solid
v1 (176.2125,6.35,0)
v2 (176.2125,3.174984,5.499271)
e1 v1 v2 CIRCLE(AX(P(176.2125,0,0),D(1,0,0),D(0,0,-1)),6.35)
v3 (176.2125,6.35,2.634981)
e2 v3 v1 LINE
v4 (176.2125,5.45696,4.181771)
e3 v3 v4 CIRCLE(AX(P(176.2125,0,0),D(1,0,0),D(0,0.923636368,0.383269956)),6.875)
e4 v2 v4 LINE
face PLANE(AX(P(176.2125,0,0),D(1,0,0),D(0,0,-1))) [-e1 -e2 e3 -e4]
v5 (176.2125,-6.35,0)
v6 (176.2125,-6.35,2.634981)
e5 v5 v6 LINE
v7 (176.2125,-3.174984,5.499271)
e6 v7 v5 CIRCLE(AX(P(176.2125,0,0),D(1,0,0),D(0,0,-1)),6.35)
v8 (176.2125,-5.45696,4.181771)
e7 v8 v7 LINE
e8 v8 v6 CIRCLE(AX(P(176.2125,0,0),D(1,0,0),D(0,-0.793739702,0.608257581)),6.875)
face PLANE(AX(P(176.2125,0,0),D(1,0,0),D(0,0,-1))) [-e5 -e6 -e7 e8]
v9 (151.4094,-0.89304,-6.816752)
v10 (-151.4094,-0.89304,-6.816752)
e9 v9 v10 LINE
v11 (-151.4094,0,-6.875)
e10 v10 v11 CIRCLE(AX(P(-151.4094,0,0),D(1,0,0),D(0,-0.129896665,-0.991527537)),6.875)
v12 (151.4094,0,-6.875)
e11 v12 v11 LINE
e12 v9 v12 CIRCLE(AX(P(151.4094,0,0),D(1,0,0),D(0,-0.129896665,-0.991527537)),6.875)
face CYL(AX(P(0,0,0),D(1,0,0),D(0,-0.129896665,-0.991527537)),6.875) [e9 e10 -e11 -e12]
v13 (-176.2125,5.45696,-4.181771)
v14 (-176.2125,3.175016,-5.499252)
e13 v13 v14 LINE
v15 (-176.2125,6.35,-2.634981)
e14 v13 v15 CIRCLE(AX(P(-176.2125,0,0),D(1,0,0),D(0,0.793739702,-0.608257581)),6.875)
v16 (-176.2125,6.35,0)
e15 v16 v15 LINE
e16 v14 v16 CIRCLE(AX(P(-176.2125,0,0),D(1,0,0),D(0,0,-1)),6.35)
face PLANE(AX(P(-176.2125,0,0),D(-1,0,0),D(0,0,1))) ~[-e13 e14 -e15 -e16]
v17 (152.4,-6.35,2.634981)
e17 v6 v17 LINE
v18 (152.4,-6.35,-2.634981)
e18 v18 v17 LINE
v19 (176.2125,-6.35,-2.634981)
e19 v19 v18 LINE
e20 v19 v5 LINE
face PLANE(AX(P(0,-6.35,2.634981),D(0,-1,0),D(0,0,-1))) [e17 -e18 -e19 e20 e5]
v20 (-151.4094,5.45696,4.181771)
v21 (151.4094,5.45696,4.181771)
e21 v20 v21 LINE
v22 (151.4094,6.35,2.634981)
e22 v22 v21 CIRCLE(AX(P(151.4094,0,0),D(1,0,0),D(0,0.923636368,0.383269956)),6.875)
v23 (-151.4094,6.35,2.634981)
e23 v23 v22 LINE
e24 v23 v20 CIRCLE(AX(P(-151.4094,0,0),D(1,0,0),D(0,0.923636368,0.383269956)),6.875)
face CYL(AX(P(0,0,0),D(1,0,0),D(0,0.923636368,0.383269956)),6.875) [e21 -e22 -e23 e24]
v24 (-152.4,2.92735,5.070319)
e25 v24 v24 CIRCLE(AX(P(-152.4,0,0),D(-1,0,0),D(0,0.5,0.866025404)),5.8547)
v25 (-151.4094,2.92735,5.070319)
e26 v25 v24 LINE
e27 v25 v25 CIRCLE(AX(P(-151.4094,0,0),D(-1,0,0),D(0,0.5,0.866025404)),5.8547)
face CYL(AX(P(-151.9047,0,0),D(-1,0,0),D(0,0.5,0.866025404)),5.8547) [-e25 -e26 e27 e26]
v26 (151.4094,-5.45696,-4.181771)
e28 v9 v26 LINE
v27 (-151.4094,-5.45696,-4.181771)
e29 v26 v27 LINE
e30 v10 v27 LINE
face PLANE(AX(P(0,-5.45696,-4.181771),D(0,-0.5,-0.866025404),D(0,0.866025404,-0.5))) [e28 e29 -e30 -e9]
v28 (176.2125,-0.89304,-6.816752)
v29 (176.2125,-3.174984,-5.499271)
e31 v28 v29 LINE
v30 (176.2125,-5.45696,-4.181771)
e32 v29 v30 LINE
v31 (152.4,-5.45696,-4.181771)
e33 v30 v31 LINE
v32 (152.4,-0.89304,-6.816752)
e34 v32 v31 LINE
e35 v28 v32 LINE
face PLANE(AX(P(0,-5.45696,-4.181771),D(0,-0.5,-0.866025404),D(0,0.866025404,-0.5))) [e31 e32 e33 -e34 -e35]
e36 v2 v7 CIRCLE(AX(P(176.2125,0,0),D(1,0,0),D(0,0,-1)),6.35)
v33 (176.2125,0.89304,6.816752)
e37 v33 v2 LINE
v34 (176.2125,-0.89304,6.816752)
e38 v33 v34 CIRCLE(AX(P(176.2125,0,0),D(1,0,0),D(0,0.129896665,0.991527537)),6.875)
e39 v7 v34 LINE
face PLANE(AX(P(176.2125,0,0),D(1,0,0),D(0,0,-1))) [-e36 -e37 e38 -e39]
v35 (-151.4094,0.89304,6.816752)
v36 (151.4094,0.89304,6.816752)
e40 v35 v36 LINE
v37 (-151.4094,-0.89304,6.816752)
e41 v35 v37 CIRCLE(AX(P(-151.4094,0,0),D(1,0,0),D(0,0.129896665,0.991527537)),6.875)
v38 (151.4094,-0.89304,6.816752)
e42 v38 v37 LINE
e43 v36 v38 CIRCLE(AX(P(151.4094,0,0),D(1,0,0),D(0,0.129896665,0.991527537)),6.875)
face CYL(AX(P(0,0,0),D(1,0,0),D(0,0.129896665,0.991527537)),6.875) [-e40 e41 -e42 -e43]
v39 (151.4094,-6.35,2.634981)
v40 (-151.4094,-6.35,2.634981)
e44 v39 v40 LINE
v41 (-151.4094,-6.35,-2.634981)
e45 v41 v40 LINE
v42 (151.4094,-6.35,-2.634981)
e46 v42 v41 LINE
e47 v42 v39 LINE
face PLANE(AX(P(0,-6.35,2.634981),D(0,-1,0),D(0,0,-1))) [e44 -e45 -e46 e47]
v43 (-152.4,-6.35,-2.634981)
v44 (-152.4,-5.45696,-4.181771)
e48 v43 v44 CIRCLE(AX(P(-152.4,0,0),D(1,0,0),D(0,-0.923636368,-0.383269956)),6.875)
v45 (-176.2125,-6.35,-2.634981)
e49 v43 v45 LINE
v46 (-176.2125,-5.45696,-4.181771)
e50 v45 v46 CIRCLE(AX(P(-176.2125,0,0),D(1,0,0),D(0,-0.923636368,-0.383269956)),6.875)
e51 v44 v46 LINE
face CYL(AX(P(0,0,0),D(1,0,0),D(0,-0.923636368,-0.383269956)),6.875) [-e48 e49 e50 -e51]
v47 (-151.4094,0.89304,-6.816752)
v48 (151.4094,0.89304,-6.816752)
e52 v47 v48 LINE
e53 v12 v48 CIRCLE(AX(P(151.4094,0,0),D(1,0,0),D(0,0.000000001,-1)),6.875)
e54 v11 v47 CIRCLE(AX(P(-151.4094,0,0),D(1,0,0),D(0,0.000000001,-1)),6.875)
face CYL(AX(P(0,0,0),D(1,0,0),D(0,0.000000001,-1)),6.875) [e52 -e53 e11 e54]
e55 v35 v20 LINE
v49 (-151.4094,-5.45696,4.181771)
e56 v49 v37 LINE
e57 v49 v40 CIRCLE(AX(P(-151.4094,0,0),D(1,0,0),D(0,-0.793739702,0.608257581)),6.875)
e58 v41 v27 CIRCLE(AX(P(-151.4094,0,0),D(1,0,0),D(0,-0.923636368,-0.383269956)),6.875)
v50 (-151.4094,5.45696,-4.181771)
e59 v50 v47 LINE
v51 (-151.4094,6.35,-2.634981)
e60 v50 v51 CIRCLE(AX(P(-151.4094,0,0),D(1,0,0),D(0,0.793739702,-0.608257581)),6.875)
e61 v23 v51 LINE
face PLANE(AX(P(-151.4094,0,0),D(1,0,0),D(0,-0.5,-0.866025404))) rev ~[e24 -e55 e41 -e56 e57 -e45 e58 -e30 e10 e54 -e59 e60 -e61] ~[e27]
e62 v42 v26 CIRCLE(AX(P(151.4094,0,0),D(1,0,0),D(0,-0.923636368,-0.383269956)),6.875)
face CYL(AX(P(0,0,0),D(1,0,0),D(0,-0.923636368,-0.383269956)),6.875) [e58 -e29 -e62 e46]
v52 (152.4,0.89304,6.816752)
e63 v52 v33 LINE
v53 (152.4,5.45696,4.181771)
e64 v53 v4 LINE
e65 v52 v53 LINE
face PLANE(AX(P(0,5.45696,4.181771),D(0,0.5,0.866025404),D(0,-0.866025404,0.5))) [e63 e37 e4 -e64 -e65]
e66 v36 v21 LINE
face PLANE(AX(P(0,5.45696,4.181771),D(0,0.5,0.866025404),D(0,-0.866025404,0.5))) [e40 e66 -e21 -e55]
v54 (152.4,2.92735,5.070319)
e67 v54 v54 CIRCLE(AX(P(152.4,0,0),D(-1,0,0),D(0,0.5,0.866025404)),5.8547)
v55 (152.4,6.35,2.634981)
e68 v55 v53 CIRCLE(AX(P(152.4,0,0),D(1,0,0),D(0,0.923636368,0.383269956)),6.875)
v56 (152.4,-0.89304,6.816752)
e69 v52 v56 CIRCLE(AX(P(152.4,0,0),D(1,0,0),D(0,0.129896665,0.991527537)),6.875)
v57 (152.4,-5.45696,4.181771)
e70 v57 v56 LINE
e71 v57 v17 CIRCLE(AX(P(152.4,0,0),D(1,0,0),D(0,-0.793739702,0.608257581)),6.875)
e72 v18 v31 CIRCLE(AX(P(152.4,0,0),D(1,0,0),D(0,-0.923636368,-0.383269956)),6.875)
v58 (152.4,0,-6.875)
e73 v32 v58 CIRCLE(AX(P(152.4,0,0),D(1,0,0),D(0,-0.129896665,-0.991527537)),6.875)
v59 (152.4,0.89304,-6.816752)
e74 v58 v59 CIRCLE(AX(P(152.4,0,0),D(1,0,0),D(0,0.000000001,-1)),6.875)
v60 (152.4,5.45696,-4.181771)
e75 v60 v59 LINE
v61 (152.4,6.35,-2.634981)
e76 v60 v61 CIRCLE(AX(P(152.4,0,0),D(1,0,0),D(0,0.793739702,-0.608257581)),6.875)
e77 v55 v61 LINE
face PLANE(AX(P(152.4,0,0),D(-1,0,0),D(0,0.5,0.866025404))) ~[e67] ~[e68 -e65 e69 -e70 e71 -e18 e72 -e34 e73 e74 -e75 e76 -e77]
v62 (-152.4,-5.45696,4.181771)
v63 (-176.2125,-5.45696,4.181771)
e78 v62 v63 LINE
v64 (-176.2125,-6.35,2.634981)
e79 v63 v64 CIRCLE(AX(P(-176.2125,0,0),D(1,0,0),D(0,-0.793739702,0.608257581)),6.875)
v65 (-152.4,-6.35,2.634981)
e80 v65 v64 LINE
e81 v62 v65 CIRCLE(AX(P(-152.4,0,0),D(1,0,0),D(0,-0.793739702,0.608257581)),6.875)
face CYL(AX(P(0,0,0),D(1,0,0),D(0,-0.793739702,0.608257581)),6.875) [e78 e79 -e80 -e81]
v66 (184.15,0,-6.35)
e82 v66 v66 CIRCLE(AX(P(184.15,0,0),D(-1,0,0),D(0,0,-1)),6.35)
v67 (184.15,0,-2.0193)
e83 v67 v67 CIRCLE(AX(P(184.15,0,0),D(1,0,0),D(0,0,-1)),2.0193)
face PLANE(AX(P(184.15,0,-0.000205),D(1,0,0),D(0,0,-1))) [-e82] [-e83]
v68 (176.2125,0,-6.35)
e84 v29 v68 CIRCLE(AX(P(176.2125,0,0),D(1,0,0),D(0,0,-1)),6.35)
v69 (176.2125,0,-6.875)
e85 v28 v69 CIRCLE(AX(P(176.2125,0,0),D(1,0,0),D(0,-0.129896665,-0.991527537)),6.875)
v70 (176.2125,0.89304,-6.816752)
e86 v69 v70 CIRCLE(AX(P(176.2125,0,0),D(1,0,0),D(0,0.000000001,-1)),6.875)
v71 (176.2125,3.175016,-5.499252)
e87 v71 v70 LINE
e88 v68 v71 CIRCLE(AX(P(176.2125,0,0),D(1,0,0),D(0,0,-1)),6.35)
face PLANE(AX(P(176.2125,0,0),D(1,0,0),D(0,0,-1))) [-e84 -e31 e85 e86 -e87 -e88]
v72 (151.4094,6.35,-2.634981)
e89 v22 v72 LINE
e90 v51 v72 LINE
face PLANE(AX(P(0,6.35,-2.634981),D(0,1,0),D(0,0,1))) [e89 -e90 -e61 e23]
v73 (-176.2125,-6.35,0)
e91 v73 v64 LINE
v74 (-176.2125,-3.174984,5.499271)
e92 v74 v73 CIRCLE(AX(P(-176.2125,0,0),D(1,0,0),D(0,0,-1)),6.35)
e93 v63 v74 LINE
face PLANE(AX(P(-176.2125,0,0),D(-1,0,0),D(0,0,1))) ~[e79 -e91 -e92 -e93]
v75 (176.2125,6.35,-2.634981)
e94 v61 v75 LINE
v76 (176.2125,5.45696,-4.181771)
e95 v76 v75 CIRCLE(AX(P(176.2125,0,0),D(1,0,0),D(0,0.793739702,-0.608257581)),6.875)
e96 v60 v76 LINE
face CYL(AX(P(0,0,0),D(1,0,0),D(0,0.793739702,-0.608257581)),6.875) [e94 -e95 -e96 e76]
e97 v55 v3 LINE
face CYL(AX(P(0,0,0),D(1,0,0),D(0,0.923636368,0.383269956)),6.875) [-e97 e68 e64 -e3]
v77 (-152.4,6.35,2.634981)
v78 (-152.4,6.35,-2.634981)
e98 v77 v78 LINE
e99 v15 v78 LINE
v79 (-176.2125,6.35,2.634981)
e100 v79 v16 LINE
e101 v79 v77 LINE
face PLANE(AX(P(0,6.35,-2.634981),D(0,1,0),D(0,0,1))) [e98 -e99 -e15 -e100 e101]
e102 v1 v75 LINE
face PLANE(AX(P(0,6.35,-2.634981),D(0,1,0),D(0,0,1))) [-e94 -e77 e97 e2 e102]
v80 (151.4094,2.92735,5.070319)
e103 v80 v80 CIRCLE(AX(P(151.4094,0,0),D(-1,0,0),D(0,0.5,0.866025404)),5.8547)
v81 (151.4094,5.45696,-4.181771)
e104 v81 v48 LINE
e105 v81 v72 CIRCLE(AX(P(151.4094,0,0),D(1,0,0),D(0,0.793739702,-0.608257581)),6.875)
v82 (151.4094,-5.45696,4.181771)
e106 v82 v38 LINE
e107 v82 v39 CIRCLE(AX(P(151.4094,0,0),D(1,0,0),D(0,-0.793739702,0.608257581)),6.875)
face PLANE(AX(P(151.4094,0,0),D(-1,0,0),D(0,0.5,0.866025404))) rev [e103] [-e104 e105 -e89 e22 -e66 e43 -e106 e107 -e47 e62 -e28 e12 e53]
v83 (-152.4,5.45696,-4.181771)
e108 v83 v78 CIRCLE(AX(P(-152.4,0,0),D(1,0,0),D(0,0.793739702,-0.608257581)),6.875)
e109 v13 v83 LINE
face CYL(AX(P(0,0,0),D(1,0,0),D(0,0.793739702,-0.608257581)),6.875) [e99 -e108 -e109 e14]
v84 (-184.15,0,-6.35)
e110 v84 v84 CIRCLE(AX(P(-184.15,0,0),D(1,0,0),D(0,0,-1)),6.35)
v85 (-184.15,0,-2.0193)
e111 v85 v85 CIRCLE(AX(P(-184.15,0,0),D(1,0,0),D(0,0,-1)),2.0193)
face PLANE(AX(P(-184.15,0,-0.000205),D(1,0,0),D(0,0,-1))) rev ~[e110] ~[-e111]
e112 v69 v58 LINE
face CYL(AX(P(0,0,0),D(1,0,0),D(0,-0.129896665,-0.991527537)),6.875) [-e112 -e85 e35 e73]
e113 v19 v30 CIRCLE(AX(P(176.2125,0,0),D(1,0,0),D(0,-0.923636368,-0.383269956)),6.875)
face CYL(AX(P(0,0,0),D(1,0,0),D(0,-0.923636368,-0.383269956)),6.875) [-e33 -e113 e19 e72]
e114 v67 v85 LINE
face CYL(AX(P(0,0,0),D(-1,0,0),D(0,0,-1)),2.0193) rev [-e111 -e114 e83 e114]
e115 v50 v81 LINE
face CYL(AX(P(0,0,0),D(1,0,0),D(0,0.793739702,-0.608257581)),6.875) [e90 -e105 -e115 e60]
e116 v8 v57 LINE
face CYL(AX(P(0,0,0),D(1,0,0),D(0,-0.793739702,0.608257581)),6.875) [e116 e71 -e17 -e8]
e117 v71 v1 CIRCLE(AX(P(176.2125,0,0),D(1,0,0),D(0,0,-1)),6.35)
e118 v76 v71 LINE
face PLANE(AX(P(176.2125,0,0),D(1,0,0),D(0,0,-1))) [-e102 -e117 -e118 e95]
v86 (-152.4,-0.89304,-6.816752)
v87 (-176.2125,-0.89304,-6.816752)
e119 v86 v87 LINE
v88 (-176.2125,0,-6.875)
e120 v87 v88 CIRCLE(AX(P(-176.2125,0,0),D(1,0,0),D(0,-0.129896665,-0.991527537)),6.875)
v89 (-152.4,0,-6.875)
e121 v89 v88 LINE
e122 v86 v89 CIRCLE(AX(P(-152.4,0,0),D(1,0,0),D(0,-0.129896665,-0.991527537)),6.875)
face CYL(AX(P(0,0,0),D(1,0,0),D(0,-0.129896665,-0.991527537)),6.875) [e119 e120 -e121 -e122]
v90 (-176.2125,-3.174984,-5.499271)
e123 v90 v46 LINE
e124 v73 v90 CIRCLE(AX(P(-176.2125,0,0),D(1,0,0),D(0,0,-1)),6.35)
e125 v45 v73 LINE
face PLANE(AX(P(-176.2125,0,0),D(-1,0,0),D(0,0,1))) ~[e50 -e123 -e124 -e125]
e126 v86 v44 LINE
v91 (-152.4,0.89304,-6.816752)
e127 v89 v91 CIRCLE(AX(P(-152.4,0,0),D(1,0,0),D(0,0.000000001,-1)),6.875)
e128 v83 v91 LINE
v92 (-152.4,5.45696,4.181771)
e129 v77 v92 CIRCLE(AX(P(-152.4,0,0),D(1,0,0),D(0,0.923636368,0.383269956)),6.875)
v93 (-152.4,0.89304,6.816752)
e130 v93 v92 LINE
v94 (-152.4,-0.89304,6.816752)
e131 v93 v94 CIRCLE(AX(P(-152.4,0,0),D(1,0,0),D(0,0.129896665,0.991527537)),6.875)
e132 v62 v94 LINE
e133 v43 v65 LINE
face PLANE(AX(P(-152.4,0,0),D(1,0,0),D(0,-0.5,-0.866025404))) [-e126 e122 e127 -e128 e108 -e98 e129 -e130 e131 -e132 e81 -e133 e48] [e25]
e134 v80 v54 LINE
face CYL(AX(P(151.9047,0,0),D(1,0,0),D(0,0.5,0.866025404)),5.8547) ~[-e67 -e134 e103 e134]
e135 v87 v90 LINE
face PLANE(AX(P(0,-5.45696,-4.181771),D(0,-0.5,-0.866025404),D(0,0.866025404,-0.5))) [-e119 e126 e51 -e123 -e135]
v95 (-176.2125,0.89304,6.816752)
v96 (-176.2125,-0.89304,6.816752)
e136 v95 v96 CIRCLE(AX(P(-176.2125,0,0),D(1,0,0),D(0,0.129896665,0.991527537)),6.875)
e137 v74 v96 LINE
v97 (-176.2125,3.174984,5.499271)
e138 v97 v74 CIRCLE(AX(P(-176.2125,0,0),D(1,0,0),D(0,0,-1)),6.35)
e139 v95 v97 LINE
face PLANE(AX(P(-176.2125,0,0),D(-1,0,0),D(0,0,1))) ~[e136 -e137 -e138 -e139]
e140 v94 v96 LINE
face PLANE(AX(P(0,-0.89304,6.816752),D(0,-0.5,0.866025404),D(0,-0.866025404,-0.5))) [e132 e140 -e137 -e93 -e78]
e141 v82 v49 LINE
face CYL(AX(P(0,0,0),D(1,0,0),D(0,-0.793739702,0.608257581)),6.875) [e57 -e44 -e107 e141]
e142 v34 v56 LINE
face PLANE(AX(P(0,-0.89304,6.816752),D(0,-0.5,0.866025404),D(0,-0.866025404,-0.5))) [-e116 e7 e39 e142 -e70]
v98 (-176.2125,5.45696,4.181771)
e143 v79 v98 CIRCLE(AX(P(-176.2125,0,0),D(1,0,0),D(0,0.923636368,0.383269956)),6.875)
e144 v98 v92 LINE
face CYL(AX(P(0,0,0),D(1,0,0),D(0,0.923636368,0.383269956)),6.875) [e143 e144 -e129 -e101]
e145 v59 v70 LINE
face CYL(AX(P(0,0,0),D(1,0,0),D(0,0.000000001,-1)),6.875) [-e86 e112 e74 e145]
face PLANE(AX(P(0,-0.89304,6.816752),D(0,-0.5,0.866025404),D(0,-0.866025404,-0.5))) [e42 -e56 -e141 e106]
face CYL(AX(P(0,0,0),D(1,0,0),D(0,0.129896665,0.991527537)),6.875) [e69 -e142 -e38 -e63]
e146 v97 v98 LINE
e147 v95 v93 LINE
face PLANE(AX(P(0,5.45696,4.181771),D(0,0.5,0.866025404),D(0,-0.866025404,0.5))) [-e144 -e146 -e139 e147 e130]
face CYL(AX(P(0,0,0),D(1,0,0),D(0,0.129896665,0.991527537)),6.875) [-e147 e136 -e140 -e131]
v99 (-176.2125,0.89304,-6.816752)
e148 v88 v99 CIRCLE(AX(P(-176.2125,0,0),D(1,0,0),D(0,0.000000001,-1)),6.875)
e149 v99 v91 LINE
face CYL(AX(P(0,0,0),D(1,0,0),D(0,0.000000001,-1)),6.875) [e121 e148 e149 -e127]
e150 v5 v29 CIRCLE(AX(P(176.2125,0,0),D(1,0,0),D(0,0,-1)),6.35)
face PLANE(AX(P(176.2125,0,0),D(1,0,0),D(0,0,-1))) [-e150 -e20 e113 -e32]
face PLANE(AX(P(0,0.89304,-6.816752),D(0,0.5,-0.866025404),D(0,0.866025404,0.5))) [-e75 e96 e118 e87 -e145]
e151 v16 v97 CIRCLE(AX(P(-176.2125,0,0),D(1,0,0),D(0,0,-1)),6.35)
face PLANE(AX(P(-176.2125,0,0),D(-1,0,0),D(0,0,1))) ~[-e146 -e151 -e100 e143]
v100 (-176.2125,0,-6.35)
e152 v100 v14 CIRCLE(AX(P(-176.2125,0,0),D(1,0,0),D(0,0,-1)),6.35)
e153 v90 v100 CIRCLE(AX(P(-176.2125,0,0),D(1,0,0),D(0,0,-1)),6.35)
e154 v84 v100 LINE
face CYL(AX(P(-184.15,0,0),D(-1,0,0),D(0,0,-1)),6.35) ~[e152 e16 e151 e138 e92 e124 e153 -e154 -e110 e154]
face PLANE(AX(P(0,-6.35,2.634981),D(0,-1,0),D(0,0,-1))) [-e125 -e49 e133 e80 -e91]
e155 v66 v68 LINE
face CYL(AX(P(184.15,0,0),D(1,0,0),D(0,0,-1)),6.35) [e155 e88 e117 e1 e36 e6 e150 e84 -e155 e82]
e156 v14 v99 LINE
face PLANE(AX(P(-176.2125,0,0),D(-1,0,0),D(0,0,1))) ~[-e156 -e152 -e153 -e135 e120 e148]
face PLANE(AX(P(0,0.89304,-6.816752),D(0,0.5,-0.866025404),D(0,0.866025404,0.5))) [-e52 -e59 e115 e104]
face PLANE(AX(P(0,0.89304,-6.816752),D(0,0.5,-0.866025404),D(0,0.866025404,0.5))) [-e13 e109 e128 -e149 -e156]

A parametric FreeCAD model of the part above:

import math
import FreeCAD as App
import Part
import Sketcher
from FreeCAD import Vector
Q = App.Units.Quantity


def add_polygon(sketch, points):
    """Adds a closed chain of lines whose ends are joined by coincident constraints."""
    first, n = sketch.GeometryCount, len(points)
    for a, b in zip(points, points[1:] + points[:1]):
        sketch.addGeometry(Part.LineSegment(App.Vector(*a, 0), App.Vector(*b, 0)), False)
    for i in range(n):
        sketch.addConstraint(Sketcher.Constraint("Coincident", first + i, 2, first + (i + 1) % n, 1))

doc = App.newDocument("Part")
body = doc.addObject("PartDesign::Body", "Body")

sketch1 = doc.addObject("Sketcher::SketchObject", "Sketch")
body.addObject(sketch1)
sketch1.AttachmentSupport = (doc.YZ_Plane, [""])
sketch1.MapMode = "FlatFace"
sketch1.addGeometry([
    Part.ArcOfCircle(Part.Circle(Vector(0, 0, 0), Vector(0, 0, 1), 6.9), math.radians(-90), math.radians(-82.54)),
    Part.LineSegment(Vector(0.9, -6.8, 0), Vector(5.5, -4.2, 0)),
    Part.ArcOfCircle(Part.Circle(Vector(0, 0, 0), Vector(0, 0, 1), 6.9), math.radians(-37.46), math.radians(-22.54)),
    Part.LineSegment(Vector(6.3, -2.6, 0), Vector(6.3, 2.6, 0)),
    Part.ArcOfCircle(Part.Circle(Vector(0, 0, 0), Vector(0, 0, 1), 6.9), math.radians(22.54), math.radians(37.46)),
    Part.LineSegment(Vector(5.5, 4.2, 0), Vector(0.9, 6.8, 0)),
    Part.ArcOfCircle(Part.Circle(Vector(0, 0, 0), Vector(0, 0, 1), 6.9), math.radians(82.54), math.radians(97.46)),
    Part.LineSegment(Vector(-0.9, 6.8, 0), Vector(-5.5, 4.2, 0)),
    Part.ArcOfCircle(Part.Circle(Vector(0, 0, 0), Vector(0, 0, 1), 6.9), math.radians(142.54), math.radians(157.46)),
    Part.LineSegment(Vector(-6.3, 2.6, 0), Vector(-6.3, -2.6, 0)),
    Part.ArcOfCircle(Part.Circle(Vector(0, 0, 0), Vector(0, 0, 1), 6.9), math.radians(-157.46), math.radians(-142.54)),
    Part.LineSegment(Vector(-5.5, -4.2, 0), Vector(-0.9, -6.8, 0)),
    Part.ArcOfCircle(Part.Circle(Vector(0, 0, 0), Vector(0, 0, 1), 6.9), math.radians(-97.46), math.radians(-90)),
    Part.Circle(Vector(0, 0, 0), Vector(0, 0, 1), 2),
], False)
sketch1.addConstraint([
    Sketcher.Constraint("Coincident", 0, 2, 1, 1),
    Sketcher.Constraint("Coincident", 1, 2, 2, 1),
    Sketcher.Constraint("Coincident", 2, 2, 3, 1),
    Sketcher.Constraint("Coincident", 3, 2, 4, 1),
    Sketcher.Constraint("Coincident", 4, 2, 5, 1),
    Sketcher.Constraint("Coincident", 5, 2, 6, 1),
    Sketcher.Constraint("Coincident", 6, 2, 7, 1),
    Sketcher.Constraint("Coincident", 7, 2, 8, 1),
    Sketcher.Constraint("Coincident", 8, 2, 9, 1),
    Sketcher.Constraint("Coincident", 9, 2, 10, 1),
    Sketcher.Constraint("Coincident", 10, 2, 11, 1),
    Sketcher.Constraint("Coincident", 11, 2, 12, 1),
    Sketcher.Constraint("Tangent", 12, 2, 0, 1),
    Sketcher.Constraint("Vertical", 3),
    Sketcher.Constraint("Vertical", 9),
    Sketcher.Constraint("Coincident", 0, 3, -1, 1),
    Sketcher.Constraint("Coincident", 2, 3, -1, 1),
    Sketcher.Constraint("Coincident", 4, 3, -1, 1),
    Sketcher.Constraint("Coincident", 6, 3, -1, 1),
    Sketcher.Constraint("Coincident", 8, 3, -1, 1),
    Sketcher.Constraint("Coincident", 10, 3, -1, 1),
    Sketcher.Constraint("Coincident", 13, 3, -1, 1),
    Sketcher.Constraint("Equal", 0, 2),
    Sketcher.Constraint("Equal", 2, 4),
    Sketcher.Constraint("Equal", 4, 6),
    Sketcher.Constraint("Equal", 6, 8),
    Sketcher.Constraint("Equal", 8, 10),
    Sketcher.Constraint("Equal", 10, 12),
    Sketcher.Constraint("PointOnObject", 12, 2, -2),
    Sketcher.Constraint("Parallel", 1, 7),
    Sketcher.Constraint("Parallel", 5, 11),
    Sketcher.Constraint("Horizontal", 5, 2, 6, 2),
    Sketcher.Constraint("Horizontal", 4, 2, 7, 2),
    Sketcher.Constraint("Horizontal", 3, 2, 8, 2),
    Sketcher.Constraint("Horizontal", 1, 2, 10, 2),
    Sketcher.Constraint("Vertical", 1, 2, 4, 2),
    Sketcher.Constraint("Diameter", 13, Q("0.159 in")),
    Sketcher.Constraint("Angle", 1, Q("30 deg")),
    Sketcher.Constraint("DistanceX", -1, 1, 2, 2, Q("0.25 in")),
    Sketcher.Constraint("Radius", 0, 6.875),
    Sketcher.Constraint("Distance", 1, 5.269962),
])
pad1 = doc.addObject("PartDesign::Pad", "Pad")
body.addObject(pad1)
pad1.Profile = sketch1
pad1.Length = Q("14.5 in")
pad1.Midplane = True

sketch2 = doc.addObject("Sketcher::SketchObject", "Sketch001")
body.addObject(sketch2)
sketch2.AttachmentSupport = (doc.YZ_Plane, [""])
sketch2.MapMode = "FlatFace"
sketch2.AttachmentOffset = App.Placement(Vector(0, 0, 7.25 * 25.4), App.Rotation())
sketch2.addGeometry([
    Part.Circle(Vector(0, 0, 0), Vector(0, 0, 1), 9),
    Part.Circle(Vector(0, 0, 0), Vector(0, 0, 1), 6),
], False)
sketch2.addConstraint([
    Sketcher.Constraint("Coincident", 0, 3, -1, 1),
    Sketcher.Constraint("Coincident", 1, 3, -1, 1),
    Sketcher.Constraint("Diameter", 0, Q("0.7 in")),
    Sketcher.Constraint("Diameter", 1, Q("0.5 in")),
])
pocket1 = doc.addObject("PartDesign::Pocket", "Pocket")
body.addObject(pocket1)
pocket1.Profile = sketch2
pocket1.Length = Q("0.3125 in")
doc.recompute()

mirrored = doc.addObject("PartDesign::Mirrored", "Mirrored")
body.addObject(mirrored)
mirrored.Originals = [pocket1]
mirrored.MirrorPlane = (doc.YZ_Plane, [""])
body.Tip = mirrored

sketch3 = doc.addObject("Sketcher::SketchObject", "Sketch002")
body.addObject(sketch3)
sketch3.AttachmentSupport = (doc.XY_Plane, [""])
sketch3.MapMode = "FlatFace"
add_polygon(sketch3, [(151.4, 8.7), (151.4, 5.9), (152.4, 5.9), (152.4, 8.7)])
sketch3.addConstraint([
    Sketcher.Constraint("Vertical", 0),
    Sketcher.Constraint("Horizontal", 1),
    Sketcher.Constraint("Vertical", 2),
    Sketcher.Constraint("Horizontal", 3),
    Sketcher.Constraint("DistanceX", -1, 1, 1, 2, Q("6 in")),
    Sketcher.Constraint("DistanceX", 1, 1, 1, 2, Q("0.039 in")),
    Sketcher.Constraint("DistanceY", -1, 1, 0, 2, Q("0.2305 in")),
    Sketcher.Constraint("DistanceY", 0, 2, 0, 1, 2.802626),
])
groove = doc.addObject("PartDesign::Groove", "Groove")
body.addObject(groove)
groove.Profile = sketch3
groove.ReferenceAxis = (sketch3, ["H_Axis"])
groove.Angle = 360
doc.recompute()

mirrored2 = doc.addObject("PartDesign::Mirrored", "Mirrored001")
body.addObject(mirrored2)
mirrored2.Originals = [groove]
mirrored2.MirrorPlane = (doc.YZ_Plane, [""])
body.Tip = mirrored2

doc.recompute()
